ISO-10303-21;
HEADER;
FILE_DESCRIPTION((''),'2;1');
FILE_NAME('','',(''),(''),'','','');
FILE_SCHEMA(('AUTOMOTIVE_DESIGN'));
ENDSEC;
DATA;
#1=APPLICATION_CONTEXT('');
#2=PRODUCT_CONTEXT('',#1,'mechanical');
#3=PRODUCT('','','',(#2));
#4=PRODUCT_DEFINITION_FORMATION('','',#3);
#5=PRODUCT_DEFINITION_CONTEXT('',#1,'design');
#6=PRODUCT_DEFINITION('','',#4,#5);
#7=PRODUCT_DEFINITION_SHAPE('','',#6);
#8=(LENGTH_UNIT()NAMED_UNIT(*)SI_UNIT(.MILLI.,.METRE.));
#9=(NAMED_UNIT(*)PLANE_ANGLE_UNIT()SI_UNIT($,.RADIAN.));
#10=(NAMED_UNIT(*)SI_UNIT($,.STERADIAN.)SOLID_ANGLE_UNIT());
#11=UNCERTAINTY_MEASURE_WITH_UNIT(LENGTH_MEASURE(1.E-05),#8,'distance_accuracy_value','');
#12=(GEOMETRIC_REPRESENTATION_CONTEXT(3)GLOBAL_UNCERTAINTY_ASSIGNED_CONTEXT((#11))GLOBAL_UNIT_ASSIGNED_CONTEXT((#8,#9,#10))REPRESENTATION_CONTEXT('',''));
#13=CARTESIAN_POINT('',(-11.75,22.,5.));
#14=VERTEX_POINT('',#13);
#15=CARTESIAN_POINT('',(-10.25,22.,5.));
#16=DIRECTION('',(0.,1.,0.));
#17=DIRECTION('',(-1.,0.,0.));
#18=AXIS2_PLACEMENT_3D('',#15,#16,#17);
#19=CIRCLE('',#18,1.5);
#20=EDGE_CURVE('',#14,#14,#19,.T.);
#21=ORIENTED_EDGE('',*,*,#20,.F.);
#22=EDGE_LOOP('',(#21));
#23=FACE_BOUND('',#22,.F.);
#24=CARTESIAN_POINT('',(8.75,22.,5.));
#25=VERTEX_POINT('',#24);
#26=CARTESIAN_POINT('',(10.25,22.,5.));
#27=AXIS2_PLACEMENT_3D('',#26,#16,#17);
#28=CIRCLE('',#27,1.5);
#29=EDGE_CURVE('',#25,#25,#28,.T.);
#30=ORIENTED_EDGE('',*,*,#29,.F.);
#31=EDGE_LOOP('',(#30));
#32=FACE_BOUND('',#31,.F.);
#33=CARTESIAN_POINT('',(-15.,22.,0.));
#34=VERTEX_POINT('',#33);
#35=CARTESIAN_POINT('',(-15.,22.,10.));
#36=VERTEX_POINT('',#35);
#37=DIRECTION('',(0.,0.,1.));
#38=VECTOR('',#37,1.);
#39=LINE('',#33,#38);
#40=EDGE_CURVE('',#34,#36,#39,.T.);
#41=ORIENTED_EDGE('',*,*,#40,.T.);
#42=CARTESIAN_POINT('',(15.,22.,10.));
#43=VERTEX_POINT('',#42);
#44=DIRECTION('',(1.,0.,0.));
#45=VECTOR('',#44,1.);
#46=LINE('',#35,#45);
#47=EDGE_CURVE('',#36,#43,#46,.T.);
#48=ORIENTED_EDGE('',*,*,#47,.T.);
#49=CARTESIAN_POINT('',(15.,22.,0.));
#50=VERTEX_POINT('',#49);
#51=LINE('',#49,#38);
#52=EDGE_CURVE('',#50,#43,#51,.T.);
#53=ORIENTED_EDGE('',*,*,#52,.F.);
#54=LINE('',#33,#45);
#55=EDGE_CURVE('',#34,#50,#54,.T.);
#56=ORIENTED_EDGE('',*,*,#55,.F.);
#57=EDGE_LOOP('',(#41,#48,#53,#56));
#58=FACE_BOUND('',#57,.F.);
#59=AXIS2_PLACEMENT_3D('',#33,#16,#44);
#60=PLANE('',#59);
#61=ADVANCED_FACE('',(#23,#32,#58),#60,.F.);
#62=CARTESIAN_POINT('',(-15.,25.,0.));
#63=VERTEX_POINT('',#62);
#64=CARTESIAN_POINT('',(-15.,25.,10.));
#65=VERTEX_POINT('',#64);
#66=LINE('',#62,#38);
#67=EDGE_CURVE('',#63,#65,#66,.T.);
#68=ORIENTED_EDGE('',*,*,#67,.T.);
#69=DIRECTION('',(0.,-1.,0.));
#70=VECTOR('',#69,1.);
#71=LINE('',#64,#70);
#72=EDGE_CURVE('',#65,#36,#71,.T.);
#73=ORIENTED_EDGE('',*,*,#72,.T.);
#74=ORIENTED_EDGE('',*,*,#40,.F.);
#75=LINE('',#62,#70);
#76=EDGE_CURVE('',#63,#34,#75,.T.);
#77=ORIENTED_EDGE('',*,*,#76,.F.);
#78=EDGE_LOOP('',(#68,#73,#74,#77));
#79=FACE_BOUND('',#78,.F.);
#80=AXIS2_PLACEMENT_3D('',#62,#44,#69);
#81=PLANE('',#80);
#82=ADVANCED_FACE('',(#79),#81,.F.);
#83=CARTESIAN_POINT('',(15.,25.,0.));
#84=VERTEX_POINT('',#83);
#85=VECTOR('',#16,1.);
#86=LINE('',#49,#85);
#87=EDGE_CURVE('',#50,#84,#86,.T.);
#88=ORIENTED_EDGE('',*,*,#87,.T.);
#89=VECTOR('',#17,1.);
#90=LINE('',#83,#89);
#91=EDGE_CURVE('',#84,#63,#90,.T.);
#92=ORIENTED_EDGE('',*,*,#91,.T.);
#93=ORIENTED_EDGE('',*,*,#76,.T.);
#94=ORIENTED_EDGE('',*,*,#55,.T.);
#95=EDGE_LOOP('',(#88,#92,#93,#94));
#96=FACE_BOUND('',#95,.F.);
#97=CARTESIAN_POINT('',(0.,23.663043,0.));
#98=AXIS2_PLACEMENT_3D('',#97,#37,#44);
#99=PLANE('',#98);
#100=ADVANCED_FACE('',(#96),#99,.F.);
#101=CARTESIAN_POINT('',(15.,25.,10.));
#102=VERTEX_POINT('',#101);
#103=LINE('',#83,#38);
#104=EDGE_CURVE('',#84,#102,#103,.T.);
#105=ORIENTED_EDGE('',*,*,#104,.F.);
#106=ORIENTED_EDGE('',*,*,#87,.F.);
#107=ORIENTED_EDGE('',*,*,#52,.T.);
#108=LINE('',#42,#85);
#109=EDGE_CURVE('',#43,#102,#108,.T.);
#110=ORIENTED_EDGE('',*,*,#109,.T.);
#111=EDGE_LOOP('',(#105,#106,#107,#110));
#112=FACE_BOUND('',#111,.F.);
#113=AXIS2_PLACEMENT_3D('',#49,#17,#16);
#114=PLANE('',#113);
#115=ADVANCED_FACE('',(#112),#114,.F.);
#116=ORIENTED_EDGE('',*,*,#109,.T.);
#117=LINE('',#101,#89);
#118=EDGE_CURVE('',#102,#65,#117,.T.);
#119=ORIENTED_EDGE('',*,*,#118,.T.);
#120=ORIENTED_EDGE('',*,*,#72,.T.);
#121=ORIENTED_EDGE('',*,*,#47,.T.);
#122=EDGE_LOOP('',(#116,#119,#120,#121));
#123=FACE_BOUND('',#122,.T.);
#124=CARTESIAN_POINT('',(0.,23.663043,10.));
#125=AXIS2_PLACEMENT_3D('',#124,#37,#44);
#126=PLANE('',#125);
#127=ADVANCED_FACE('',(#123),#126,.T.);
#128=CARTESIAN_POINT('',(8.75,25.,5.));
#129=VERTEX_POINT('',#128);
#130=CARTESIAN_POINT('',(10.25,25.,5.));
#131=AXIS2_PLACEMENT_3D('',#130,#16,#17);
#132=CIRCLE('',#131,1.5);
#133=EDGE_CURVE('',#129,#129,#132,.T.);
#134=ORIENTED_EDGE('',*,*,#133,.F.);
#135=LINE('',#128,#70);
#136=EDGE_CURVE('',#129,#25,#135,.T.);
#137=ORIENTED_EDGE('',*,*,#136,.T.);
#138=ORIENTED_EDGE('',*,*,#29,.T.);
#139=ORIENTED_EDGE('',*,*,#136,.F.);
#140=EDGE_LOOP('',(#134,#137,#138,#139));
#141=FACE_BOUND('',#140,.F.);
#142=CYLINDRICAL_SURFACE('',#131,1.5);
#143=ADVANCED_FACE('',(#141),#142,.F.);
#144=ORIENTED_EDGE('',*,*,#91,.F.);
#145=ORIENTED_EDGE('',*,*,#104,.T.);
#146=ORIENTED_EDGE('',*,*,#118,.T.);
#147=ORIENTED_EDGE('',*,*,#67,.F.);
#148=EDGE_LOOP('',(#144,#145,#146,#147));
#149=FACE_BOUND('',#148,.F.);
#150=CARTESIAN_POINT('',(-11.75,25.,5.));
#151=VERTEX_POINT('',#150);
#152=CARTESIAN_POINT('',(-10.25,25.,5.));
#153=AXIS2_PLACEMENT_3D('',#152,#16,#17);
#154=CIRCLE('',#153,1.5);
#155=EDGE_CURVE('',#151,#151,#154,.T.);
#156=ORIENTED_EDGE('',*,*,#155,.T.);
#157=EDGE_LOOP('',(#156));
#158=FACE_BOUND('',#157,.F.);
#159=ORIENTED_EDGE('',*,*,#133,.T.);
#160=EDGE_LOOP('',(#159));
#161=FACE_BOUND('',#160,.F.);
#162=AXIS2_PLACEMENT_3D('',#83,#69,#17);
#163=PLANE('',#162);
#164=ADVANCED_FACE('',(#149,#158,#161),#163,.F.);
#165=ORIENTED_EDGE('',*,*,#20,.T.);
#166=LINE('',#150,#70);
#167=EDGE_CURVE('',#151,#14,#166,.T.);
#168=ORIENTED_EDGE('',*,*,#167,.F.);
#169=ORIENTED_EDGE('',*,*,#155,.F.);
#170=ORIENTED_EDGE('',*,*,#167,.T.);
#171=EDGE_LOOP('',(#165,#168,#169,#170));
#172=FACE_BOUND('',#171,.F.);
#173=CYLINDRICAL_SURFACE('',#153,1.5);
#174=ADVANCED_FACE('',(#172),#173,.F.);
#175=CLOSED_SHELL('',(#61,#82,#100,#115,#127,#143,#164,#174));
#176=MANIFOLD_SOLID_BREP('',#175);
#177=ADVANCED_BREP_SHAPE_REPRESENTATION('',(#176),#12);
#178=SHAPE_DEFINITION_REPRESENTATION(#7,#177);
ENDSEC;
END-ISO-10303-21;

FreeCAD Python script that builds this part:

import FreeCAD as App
import Part
import Sketcher


def add_polygon(sketch, points):
    """Adds a closed chain of lines whose ends are joined by coincident constraints."""
    first, n = sketch.GeometryCount, len(points)
    for a, b in zip(points, points[1:] + points[:1]):
        sketch.addGeometry(Part.LineSegment(App.Vector(*a, 0), App.Vector(*b, 0)), False)
    for i in range(n):
        sketch.addConstraint(Sketcher.Constraint("Coincident", first + i, 2, first + (i + 1) % n, 1))

doc = App.newDocument("Part")
body = doc.addObject("PartDesign::Body", "Body")

# Sketch on XY plane
sketch1 = body.newObject("Sketcher::SketchObject", "Sketch")
sketch1.AttachmentSupport = (doc.getObject("XY_Plane"), [""])
sketch1.MapMode = "FlatFace"
add_polygon(sketch1, [(15, 22), (15, 25), (-15, 25), (-15, 22)])  # lines 0-3
sketch1.addConstraint(Sketcher.Constraint("Vertical", 0))
sketch1.addConstraint(Sketcher.Constraint("Horizontal", 1))
sketch1.addConstraint(Sketcher.Constraint("Vertical", 2))
sketch1.addConstraint(Sketcher.Constraint("Horizontal", 3))
sketch1.addConstraint(Sketcher.Constraint("DistanceX", 1, 2, 1, 1, 30.0))
sketch1.addConstraint(Sketcher.Constraint("DistanceY", 0, 1, 0, 2, 3.0))
sketch1.addConstraint(Sketcher.Constraint("DistanceX", -1, 1, 0, 2, 15.0))
sketch1.addConstraint(Sketcher.Constraint("DistanceY", -1, 1, 0, 2, 25.0))
pad1 = body.newObject("PartDesign::Pad", "Pad")
pad1.Profile = sketch1
pad1.Length = 10

# Sketch on XZ plane
sketch2 = body.newObject("Sketcher::SketchObject", "Sketch001")
sketch2.AttachmentSupport = (doc.getObject("XZ_Plane"), [""])
sketch2.MapMode = "FlatFace"
sketch2.AttachmentOffset = App.Placement(App.Vector(0, 0, -25), App.Rotation())
sketch2.addGeometry(Part.Circle(App.Vector(-10.2, 5, 0), App.Vector(0, 0, 1), 1.5), False)
sketch2.addGeometry(Part.Circle(App.Vector(10.2, 5, 0), App.Vector(0, 0, 1), 1.5), False)
sketch2.addConstraint(Sketcher.Constraint("Equal", 0, 1))
sketch2.addConstraint(Sketcher.Constraint("Symmetric", 0, 3, 1, 3, -2))
sketch2.addConstraint(Sketcher.Constraint("Diameter", 0, 3.0))
sketch2.addConstraint(Sketcher.Constraint("DistanceY", -1, 1, 0, 3, 5.0))
sketch2.addConstraint(Sketcher.Constraint("DistanceX", 0, 3, 1, 3, 20.5))
pocket1 = body.newObject("PartDesign::Pocket", "Pocket")
pocket1.Profile = sketch2
pocket1.Type = "ThroughAll"
pocket1.Reversed = True

# Sketch on XZ plane
sketch3 = body.newObject("Sketcher::SketchObject", "Sketch002")
sketch3.AttachmentSupport = (doc.getObject("XZ_Plane"), [""])
sketch3.MapMode = "FlatFace"
sketch3.AttachmentOffset = App.Placement(App.Vector(0, 0, -25), App.Rotation())
sketch3.addGeometry(Part.Circle(App.Vector(22.2, 5, 0), App.Vector(0, 0, 1), 1.5), False)
sketch3.addConstraint(Sketcher.Constraint("Diameter", 0, 3.0))
sketch3.addConstraint(Sketcher.Constraint("DistanceY", -1, 1, 0, 3, 5.0))
sketch3.addConstraint(Sketcher.Constraint("DistanceX", -1, 1, 0, 3, 22.25))
pocket2 = body.newObject("PartDesign::Pocket", "Pocket001")
pocket2.Profile = sketch3
pocket2.Type = "ThroughAll"
pocket2.Reversed = True

doc.recompute()
